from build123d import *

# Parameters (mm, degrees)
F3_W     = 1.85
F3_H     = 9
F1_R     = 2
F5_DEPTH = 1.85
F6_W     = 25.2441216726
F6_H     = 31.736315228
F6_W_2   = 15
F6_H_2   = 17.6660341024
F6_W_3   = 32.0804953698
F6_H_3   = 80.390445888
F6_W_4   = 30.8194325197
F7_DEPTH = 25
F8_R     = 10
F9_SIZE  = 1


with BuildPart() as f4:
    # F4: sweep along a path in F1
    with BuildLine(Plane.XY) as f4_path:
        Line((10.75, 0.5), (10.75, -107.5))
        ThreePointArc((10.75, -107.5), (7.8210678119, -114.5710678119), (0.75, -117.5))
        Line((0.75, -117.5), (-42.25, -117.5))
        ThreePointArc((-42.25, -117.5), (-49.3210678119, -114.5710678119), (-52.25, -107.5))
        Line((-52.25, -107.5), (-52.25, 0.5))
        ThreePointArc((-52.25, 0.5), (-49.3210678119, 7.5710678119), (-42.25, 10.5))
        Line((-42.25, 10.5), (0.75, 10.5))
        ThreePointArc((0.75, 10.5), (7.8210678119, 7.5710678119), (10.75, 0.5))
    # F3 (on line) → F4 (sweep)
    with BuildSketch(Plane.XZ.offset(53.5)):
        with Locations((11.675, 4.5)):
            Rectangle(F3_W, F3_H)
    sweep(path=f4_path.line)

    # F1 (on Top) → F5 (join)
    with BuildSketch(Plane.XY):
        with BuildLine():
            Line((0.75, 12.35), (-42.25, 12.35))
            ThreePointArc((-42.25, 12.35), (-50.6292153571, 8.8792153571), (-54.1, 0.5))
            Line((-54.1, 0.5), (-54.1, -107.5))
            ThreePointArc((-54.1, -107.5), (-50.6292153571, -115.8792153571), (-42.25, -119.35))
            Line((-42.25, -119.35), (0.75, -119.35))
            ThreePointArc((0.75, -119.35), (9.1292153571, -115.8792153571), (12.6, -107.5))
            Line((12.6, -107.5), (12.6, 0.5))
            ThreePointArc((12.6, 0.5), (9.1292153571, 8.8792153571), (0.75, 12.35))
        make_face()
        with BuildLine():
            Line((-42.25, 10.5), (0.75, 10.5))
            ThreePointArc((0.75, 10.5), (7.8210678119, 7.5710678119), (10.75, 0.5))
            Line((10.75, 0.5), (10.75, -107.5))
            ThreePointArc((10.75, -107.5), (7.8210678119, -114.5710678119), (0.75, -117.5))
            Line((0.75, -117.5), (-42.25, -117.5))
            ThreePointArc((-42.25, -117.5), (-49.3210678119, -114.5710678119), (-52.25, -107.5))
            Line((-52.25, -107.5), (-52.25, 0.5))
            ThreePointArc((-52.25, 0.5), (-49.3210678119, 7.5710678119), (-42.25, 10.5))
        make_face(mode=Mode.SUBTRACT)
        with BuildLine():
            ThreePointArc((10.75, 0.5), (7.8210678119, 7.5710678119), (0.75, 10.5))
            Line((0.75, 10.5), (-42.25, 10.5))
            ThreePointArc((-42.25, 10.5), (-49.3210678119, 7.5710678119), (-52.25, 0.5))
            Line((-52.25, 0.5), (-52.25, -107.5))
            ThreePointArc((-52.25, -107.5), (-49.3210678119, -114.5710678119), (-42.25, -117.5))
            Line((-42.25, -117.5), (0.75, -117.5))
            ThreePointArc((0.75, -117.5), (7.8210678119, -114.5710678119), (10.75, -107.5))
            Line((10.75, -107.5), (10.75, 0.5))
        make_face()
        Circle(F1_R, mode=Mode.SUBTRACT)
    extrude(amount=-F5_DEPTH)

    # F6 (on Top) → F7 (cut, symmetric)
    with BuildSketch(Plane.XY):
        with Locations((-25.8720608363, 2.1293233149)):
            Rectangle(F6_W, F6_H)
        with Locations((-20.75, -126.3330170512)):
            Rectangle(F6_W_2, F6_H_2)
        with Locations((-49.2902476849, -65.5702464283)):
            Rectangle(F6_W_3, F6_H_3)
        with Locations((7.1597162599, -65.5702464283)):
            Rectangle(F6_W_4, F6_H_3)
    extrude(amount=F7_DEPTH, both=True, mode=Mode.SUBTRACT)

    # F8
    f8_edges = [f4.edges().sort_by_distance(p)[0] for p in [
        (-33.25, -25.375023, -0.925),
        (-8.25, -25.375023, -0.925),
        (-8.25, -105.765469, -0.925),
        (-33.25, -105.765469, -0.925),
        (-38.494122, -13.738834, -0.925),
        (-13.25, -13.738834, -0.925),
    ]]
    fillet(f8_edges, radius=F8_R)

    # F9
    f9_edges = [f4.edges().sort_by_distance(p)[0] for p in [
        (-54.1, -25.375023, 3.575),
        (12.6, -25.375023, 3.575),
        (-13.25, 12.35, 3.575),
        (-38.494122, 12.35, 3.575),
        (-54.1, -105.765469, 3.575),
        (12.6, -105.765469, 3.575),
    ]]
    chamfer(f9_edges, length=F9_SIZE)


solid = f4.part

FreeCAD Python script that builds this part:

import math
import FreeCAD as App
import Part
import Sketcher
from FreeCAD import Vector


def edges_at(feature, points):
    """Names of the edges that pass closest to the given points."""
    edges = feature.Shape.Edges
    near = lambda p: min(range(len(edges)), key=lambda i: edges[i].distToShape(Part.Vertex(*p))[0])
    return sorted({f"Edge{near(p) + 1}" for p in points})

doc = App.newDocument("Part")
body = doc.addObject("PartDesign::Body", "Body")

sketch1 = doc.addObject("Sketcher::SketchObject", "Sketch")
body.addObject(sketch1)
sketch1.AttachmentSupport = (doc.XZ_Plane, [""])
sketch1.MapMode = "FlatFace"
sketch1.AttachmentOffset = App.Placement(Vector(0, 0, 53.5), App.Rotation())
sketch1.addGeometry(Part.LineSegment(Vector(10.8, 9, 0), Vector(10.8, 0, 0)), False)
sketch1.addGeometry(Part.LineSegment(Vector(10.8, 0, 0), Vector(12.6, 0, 0)), False)
sketch1.addGeometry(Part.LineSegment(Vector(12.6, 0, 0), Vector(12.6, 9, 0)), False)
sketch1.addGeometry(Part.LineSegment(Vector(12.6, 9, 0), Vector(10.8, 9, 0)), False)
sketch1.addConstraint(Sketcher.Constraint("Coincident", 0, 2, 1, 1))
sketch1.addConstraint(Sketcher.Constraint("Coincident", 1, 2, 2, 1))
sketch1.addConstraint(Sketcher.Constraint("Coincident", 2, 2, 3, 1))
sketch1.addConstraint(Sketcher.Constraint("Coincident", 3, 2, 0, 1))
sketch1.addConstraint(Sketcher.Constraint("Vertical", 0))
sketch1.addConstraint(Sketcher.Constraint("Horizontal", 1))
sketch1.addConstraint(Sketcher.Constraint("Vertical", 2))
sketch1.addConstraint(Sketcher.Constraint("Horizontal", 3))
sketch1.addConstraint(Sketcher.Constraint("PointOnObject", 0, 2, -1))
sketch1.addConstraint(Sketcher.Constraint("DistanceY", 0, 2, 0, 1, 9.0))
sketch1.addConstraint(Sketcher.Constraint("DistanceX", 1, 1, 1, 2, 1.85))
sketch1.addConstraint(Sketcher.Constraint("DistanceX", -1, 1, 1, 2, 12.6))

sketch2 = doc.addObject("Sketcher::SketchObject", "Sketch001")
body.addObject(sketch2)
sketch2.AttachmentSupport = (doc.XY_Plane, [""])
sketch2.MapMode = "FlatFace"
sketch2.addGeometry(Part.LineSegment(Vector(11, 0, 0), Vector(11, -108, 0)), False)
sketch2.addGeometry(Part.ArcOfCircle(Part.Circle(Vector(1, -108, 0), Vector(0, 0, 1), 10), math.radians(-90), math.radians(0)), False)
sketch2.addGeometry(Part.LineSegment(Vector(1, -118, 0), Vector(-42, -118, 0)), False)
sketch2.addGeometry(Part.ArcOfCircle(Part.Circle(Vector(-42, -108, 0), Vector(0, 0, 1), 10), math.radians(180), math.radians(270)), False)
sketch2.addGeometry(Part.LineSegment(Vector(-52, -108, 0), Vector(-52, 0, 0)), False)
sketch2.addGeometry(Part.ArcOfCircle(Part.Circle(Vector(-42, 0, 0), Vector(0, 0, 1), 10), math.radians(90), math.radians(180)), False)
sketch2.addGeometry(Part.LineSegment(Vector(-42, 10, 0), Vector(1, 10, 0)), False)
sketch2.addGeometry(Part.ArcOfCircle(Part.Circle(Vector(1, 0, 0), Vector(0, 0, 1), 10), math.radians(0), math.radians(90)), False)
sketch2.addConstraint(Sketcher.Constraint("Tangent", 0, 2, 1, 2))
sketch2.addConstraint(Sketcher.Constraint("Tangent", 1, 1, 2, 1))
sketch2.addConstraint(Sketcher.Constraint("Tangent", 2, 2, 3, 2))
sketch2.addConstraint(Sketcher.Constraint("Tangent", 3, 1, 4, 1))
sketch2.addConstraint(Sketcher.Constraint("Tangent", 4, 2, 5, 2))
sketch2.addConstraint(Sketcher.Constraint("Tangent", 5, 1, 6, 1))
sketch2.addConstraint(Sketcher.Constraint("Tangent", 6, 2, 7, 2))
sketch2.addConstraint(Sketcher.Constraint("Tangent", 7, 1, 0, 1))
sketch2.addConstraint(Sketcher.Constraint("Vertical", 0))
sketch2.addConstraint(Sketcher.Constraint("Horizontal", 2))
sketch2.addConstraint(Sketcher.Constraint("Vertical", 4))
sketch2.addConstraint(Sketcher.Constraint("Horizontal", 6))
sketch2.addConstraint(Sketcher.Constraint("Equal", 1, 3))
sketch2.addConstraint(Sketcher.Constraint("Equal", 3, 5))
sketch2.addConstraint(Sketcher.Constraint("Equal", 5, 7))
sketch2.addConstraint(Sketcher.Constraint("Radius", 1, 10.0))
sketch2.addConstraint(Sketcher.Constraint("DistanceX", 2, 2, 2, 1, 43.0))
sketch2.addConstraint(Sketcher.Constraint("DistanceY", 0, 2, 0, 1, 108.0))
sketch2.addConstraint(Sketcher.Constraint("DistanceY", 1, 3, -1, 1, 107.5))
sketch2.addConstraint(Sketcher.Constraint("DistanceX", -1, 1, 1, 3, 0.75))
doc.recompute()

additivepipe = doc.addObject("PartDesign::AdditivePipe", "AdditivePipe")
body.addObject(additivepipe)
additivepipe.Profile = sketch1
additivepipe.Spine = (sketch2, ["Edge1", "Edge2", "Edge3", "Edge4", "Edge5", "Edge6", "Edge7", "Edge8"])

sketch3 = doc.addObject("Sketcher::SketchObject", "Sketch002")
body.addObject(sketch3)
sketch3.AttachmentSupport = (doc.XY_Plane, [""])
sketch3.MapMode = "FlatFace"
sketch3.addGeometry(Part.LineSegment(Vector(0.8, 12.3, 0), Vector(-42.2, 12.3, 0)), False)
sketch3.addGeometry(Part.ArcOfCircle(Part.Circle(Vector(-42.2, 0.5, 0), Vector(0, 0, 1), 11.8), math.radians(90), math.radians(180)), False)
sketch3.addGeometry(Part.LineSegment(Vector(-54.1, 0.5, 0), Vector(-54.1, -107.5, 0)), False)
sketch3.addGeometry(Part.ArcOfCircle(Part.Circle(Vector(-42.2, -107.5, 0), Vector(0, 0, 1), 11.8), math.radians(180), math.radians(270)), False)
sketch3.addGeometry(Part.LineSegment(Vector(-42.2, -119.3, 0), Vector(0.8, -119.3, 0)), False)
sketch3.addGeometry(Part.ArcOfCircle(Part.Circle(Vector(0.8, -107.5, 0), Vector(0, 0, 1), 11.8), math.radians(-90), math.radians(0)), False)
sketch3.addGeometry(Part.LineSegment(Vector(12.6, -107.5, 0), Vector(12.6, 0.5, 0)), False)
sketch3.addGeometry(Part.ArcOfCircle(Part.Circle(Vector(0.8, 0.5, 0), Vector(0, 0, 1), 11.8), math.radians(0), math.radians(90)), False)
sketch3.addGeometry(Part.Circle(Vector(0, 0, 0), Vector(0, 0, 1), 2), False)
sketch3.addConstraint(Sketcher.Constraint("Tangent", 0, 2, 1, 1))
sketch3.addConstraint(Sketcher.Constraint("Tangent", 1, 2, 2, 1))
sketch3.addConstraint(Sketcher.Constraint("Tangent", 2, 2, 3, 1))
sketch3.addConstraint(Sketcher.Constraint("Tangent", 3, 2, 4, 1))
sketch3.addConstraint(Sketcher.Constraint("Tangent", 4, 2, 5, 1))
sketch3.addConstraint(Sketcher.Constraint("Tangent", 5, 2, 6, 1))
sketch3.addConstraint(Sketcher.Constraint("Tangent", 6, 2, 7, 1))
sketch3.addConstraint(Sketcher.Constraint("Tangent", 7, 2, 0, 1))
sketch3.addConstraint(Sketcher.Constraint("Horizontal", 0))
sketch3.addConstraint(Sketcher.Constraint("Vertical", 2))
sketch3.addConstraint(Sketcher.Constraint("Horizontal", 4))
sketch3.addConstraint(Sketcher.Constraint("Vertical", 6))
sketch3.addConstraint(Sketcher.Constraint("Coincident", 8, 3, -1, 1))
sketch3.addConstraint(Sketcher.Constraint("Equal", 1, 3))
sketch3.addConstraint(Sketcher.Constraint("Equal", 3, 5))
sketch3.addConstraint(Sketcher.Constraint("Equal", 5, 7))
sketch3.addConstraint(Sketcher.Constraint("Diameter", 8, 4.0))
sketch3.addConstraint(Sketcher.Constraint("DistanceX", 0, 2, 0, 1, 43.0))
sketch3.addConstraint(Sketcher.Constraint("DistanceY", 2, 2, 2, 1, 108.0))
sketch3.addConstraint(Sketcher.Constraint("Radius", 1, 11.85))
sketch3.addConstraint(Sketcher.Constraint("DistanceY", -1, 1, 1, 3, 0.5))
sketch3.addConstraint(Sketcher.Constraint("DistanceX", 1, 2, -1, 1, 54.1))
pad1 = doc.addObject("PartDesign::Pad", "Pad")
body.addObject(pad1)
pad1.Profile = sketch3
pad1.Length = 1.85
pad1.Reversed = True

sketch4 = doc.addObject("Sketcher::SketchObject", "Sketch003")
body.addObject(sketch4)
sketch4.AttachmentSupport = (doc.XY_Plane, [""])
sketch4.MapMode = "FlatFace"
sketch4.addGeometry(Part.LineSegment(Vector(-38, 18, 0), Vector(-38, -14, 0)), False)
sketch4.addGeometry(Part.LineSegment(Vector(-38, -14, 0), Vector(-13, -14, 0)), False)
sketch4.addGeometry(Part.LineSegment(Vector(-13, -14, 0), Vector(-13, 18, 0)), False)
sketch4.addGeometry(Part.LineSegment(Vector(-13, 18, 0), Vector(-38, 18, 0)), False)
sketch4.addGeometry(Part.LineSegment(Vector(-28, -118, 0), Vector(-28, -135, 0)), False)
sketch4.addGeometry(Part.LineSegment(Vector(-28, -135, 0), Vector(-13, -135, 0)), False)
sketch4.addGeometry(Part.LineSegment(Vector(-13, -135, 0), Vector(-13, -118, 0)), False)
sketch4.addGeometry(Part.LineSegment(Vector(-13, -118, 0), Vector(-28, -118, 0)), False)
sketch4.addGeometry(Part.LineSegment(Vector(-65, -25, 0), Vector(-65, -106, 0)), False)
sketch4.addGeometry(Part.LineSegment(Vector(-65, -106, 0), Vector(-33, -106, 0)), False)
sketch4.addGeometry(Part.LineSegment(Vector(-33, -106, 0), Vector(-33, -25, 0)), False)
sketch4.addGeometry(Part.LineSegment(Vector(-33, -25, 0), Vector(-65, -25, 0)), False)
sketch4.addGeometry(Part.LineSegment(Vector(-8, -25, 0), Vector(-8, -106, 0)), False)
sketch4.addGeometry(Part.LineSegment(Vector(-8, -106, 0), Vector(23, -106, 0)), False)
sketch4.addGeometry(Part.LineSegment(Vector(23, -106, 0), Vector(23, -25, 0)), False)
sketch4.addGeometry(Part.LineSegment(Vector(23, -25, 0), Vector(-8, -25, 0)), False)
sketch4.addConstraint(Sketcher.Constraint("Coincident", 0, 2, 1, 1))
sketch4.addConstraint(Sketcher.Constraint("Coincident", 1, 2, 2, 1))
sketch4.addConstraint(Sketcher.Constraint("Coincident", 2, 2, 3, 1))
sketch4.addConstraint(Sketcher.Constraint("Coincident", 3, 2, 0, 1))
sketch4.addConstraint(Sketcher.Constraint("Coincident", 4, 2, 5, 1))
sketch4.addConstraint(Sketcher.Constraint("Coincident", 5, 2, 6, 1))
sketch4.addConstraint(Sketcher.Constraint("Coincident", 6, 2, 7, 1))
sketch4.addConstraint(Sketcher.Constraint("Coincident", 7, 2, 4, 1))
sketch4.addConstraint(Sketcher.Constraint("Coincident", 8, 2, 9, 1))
sketch4.addConstraint(Sketcher.Constraint("Coincident", 9, 2, 10, 1))
sketch4.addConstraint(Sketcher.Constraint("Coincident", 10, 2, 11, 1))
sketch4.addConstraint(Sketcher.Constraint("Coincident", 11, 2, 8, 1))
sketch4.addConstraint(Sketcher.Constraint("Coincident", 12, 2, 13, 1))
sketch4.addConstraint(Sketcher.Constraint("Coincident", 13, 2, 14, 1))
sketch4.addConstraint(Sketcher.Constraint("Coincident", 14, 2, 15, 1))
sketch4.addConstraint(Sketcher.Constraint("Coincident", 15, 2, 12, 1))
sketch4.addConstraint(Sketcher.Constraint("Vertical", 0))
sketch4.addConstraint(Sketcher.Constraint("Horizontal", 1))
sketch4.addConstraint(Sketcher.Constraint("Vertical", 2))
sketch4.addConstraint(Sketcher.Constraint("Horizontal", 3))
sketch4.addConstraint(Sketcher.Constraint("Vertical", 4))
sketch4.addConstraint(Sketcher.Constraint("Horizontal", 5))
sketch4.addConstraint(Sketcher.Constraint("Vertical", 6))
sketch4.addConstraint(Sketcher.Constraint("Horizontal", 7))
sketch4.addConstraint(Sketcher.Constraint("Vertical", 8))
sketch4.addConstraint(Sketcher.Constraint("Horizontal", 9))
sketch4.addConstraint(Sketcher.Constraint("Vertical", 10))
sketch4.addConstraint(Sketcher.Constraint("Horizontal", 11))
sketch4.addConstraint(Sketcher.Constraint("Vertical", 12))
sketch4.addConstraint(Sketcher.Constraint("Horizontal", 13))
sketch4.addConstraint(Sketcher.Constraint("Vertical", 14))
sketch4.addConstraint(Sketcher.Constraint("Horizontal", 15))
sketch4.addConstraint(Sketcher.Constraint("Horizontal", 9, 2, 12, 2))
sketch4.addConstraint(Sketcher.Constraint("Horizontal", 11, 2, 14, 2))
sketch4.addConstraint(Sketcher.Constraint("Vertical", 2, 2, 5, 2))
sketch4.addConstraint(Sketcher.Constraint("DistanceX", 5, 1, 5, 2, 15.0))
sketch4.addConstraint(Sketcher.Constraint("DistanceX", 9, 2, 7, 2, 5.0))
sketch4.addConstraint(Sketcher.Constraint("DistanceX", 6, 2, 12, 2, 5.0))
sketch4.addConstraint(Sketcher.Constraint("DistanceY", 6, 2, -1, 1, 117.5))
sketch4.addConstraint(Sketcher.Constraint("DistanceX", 1, 2, -1, 1, 13.25))
sketch4.addConstraint(Sketcher.Constraint("DistanceX", 1, 1, 1, 2, 25.244122))
sketch4.addConstraint(Sketcher.Constraint("DistanceY", 4, 2, 0, 2, 121.4272))
sketch4.addConstraint(Sketcher.Constraint("DistanceX", 9, 1, 9, 2, 32.080495))
sketch4.addConstraint(Sketcher.Constraint("DistanceX", 13, 1, 13, 2, 30.819433))
sketch4.addConstraint(Sketcher.Constraint("DistanceY", 0, 2, 0, 1, 31.736315))
sketch4.addConstraint(Sketcher.Constraint("DistanceY", 4, 2, 4, 1, 17.666034))
sketch4.addConstraint(Sketcher.Constraint("DistanceY", 8, 2, 8, 1, 80.390446))
sketch4.addConstraint(Sketcher.Constraint("DistanceY", 8, 2, -1, 1, 105.765469))
pocket1 = doc.addObject("PartDesign::Pocket", "Pocket")
body.addObject(pocket1)
pocket1.Profile = sketch4
pocket1.Length = 50
pocket1.Midplane = True
doc.recompute()

fillet = doc.addObject("PartDesign::Fillet", "Fillet")
body.addObject(fillet)
fillet.Base = (pocket1, edges_at(pocket1, [
    (-33.25, -25.375, -0.925),
    (-8.25, -25.375, -0.925),
    (-8.25, -105.765, -0.925),
    (-33.25, -105.765, -0.925),
    (-38.494, -13.739, -0.925),
    (-13.25, -13.739, -0.925),
]))
fillet.Radius = 10
doc.recompute()

chamfer = doc.addObject("PartDesign::Chamfer", "Chamfer")
body.addObject(chamfer)
chamfer.Base = (fillet, edges_at(fillet, [
    (-54.1, -25.375, 3.575),
    (12.6, -25.375, 3.575),
    (-13.25, 12.35, 3.575),
    (-38.494, 12.35, 3.575),
    (-54.1, -105.765, 3.575),
    (12.6, -105.765, 3.575),
]))
chamfer.Size = 1

doc.recompute()
